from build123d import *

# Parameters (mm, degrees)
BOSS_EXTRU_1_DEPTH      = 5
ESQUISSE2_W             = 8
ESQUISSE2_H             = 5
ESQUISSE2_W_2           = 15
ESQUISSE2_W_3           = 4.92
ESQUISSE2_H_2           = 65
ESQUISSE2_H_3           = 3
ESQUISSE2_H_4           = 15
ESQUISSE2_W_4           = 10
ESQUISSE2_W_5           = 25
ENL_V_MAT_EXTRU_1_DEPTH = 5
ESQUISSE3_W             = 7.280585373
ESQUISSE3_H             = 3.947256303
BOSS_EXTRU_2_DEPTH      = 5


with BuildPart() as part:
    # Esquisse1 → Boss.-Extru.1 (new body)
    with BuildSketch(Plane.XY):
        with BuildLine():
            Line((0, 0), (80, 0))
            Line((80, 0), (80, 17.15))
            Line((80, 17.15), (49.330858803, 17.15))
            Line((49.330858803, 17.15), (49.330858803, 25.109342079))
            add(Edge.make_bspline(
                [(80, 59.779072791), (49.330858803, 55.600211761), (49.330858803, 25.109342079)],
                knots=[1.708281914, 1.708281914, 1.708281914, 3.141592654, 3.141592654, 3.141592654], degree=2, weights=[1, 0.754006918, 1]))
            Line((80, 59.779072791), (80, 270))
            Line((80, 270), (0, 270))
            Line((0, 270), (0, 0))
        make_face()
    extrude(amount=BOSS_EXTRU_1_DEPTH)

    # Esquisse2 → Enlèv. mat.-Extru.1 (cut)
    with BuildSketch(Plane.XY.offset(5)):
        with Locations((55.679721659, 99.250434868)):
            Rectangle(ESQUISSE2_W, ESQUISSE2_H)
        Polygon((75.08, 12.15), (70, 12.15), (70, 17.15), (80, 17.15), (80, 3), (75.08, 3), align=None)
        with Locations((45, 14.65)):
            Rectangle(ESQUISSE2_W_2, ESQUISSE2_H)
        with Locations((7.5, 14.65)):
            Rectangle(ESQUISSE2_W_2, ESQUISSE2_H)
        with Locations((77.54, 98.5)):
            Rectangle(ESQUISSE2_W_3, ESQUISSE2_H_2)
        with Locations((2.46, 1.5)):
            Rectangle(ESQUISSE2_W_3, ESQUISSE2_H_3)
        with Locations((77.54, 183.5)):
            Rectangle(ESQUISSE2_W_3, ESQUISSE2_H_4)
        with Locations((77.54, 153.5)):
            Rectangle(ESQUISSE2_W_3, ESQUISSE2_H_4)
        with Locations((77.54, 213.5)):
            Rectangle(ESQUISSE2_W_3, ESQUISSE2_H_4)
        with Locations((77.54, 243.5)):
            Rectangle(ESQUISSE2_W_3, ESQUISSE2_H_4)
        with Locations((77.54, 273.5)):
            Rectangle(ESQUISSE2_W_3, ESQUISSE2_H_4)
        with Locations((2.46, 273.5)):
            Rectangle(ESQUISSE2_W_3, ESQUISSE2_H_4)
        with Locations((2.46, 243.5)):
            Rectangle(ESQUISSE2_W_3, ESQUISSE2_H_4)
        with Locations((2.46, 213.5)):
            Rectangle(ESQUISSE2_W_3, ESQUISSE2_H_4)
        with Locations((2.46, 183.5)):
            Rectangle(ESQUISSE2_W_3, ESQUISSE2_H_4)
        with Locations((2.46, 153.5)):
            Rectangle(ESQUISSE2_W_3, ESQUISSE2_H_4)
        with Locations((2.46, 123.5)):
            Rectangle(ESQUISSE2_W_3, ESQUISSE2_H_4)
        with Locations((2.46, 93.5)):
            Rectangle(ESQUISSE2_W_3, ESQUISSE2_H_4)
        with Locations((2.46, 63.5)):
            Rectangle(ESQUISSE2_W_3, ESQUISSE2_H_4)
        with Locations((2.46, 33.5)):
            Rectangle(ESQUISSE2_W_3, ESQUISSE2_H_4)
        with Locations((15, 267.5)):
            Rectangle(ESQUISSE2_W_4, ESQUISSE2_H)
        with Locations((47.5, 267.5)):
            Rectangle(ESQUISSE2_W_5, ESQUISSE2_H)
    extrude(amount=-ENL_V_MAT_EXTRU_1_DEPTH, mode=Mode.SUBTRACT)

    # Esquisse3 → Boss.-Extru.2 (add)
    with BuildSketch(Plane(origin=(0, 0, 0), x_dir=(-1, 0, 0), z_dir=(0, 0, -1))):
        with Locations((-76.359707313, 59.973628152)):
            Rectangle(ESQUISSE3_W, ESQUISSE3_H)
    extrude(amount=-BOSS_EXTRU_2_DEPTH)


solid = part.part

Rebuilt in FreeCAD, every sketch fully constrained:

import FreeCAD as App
import Part
import Sketcher
Q = App.Units.Quantity


def add_polygon(sketch, points):
    """Adds a closed chain of lines whose ends are joined by coincident constraints."""
    first, n = sketch.GeometryCount, len(points)
    for a, b in zip(points, points[1:] + points[:1]):
        sketch.addGeometry(Part.LineSegment(App.Vector(*a, 0), App.Vector(*b, 0)), False)
    for i in range(n):
        sketch.addConstraint(Sketcher.Constraint("Coincident", first + i, 2, first + (i + 1) % n, 1))

doc = App.newDocument("Part")
body = doc.addObject("PartDesign::Body", "Body")

# Sketch on XY plane
sketch1 = body.newObject("Sketcher::SketchObject", "Sketch")
sketch1.AttachmentSupport = (doc.getObject("XY_Plane"), [""])
sketch1.MapMode = "FlatFace"
sketch1.addGeometry([
    Part.LineSegment(App.Vector(0, 0, 0), App.Vector(80, 0, 0)),  # 0
    Part.LineSegment(App.Vector(80, 0, 0), App.Vector(80, 17.15, 0)),  # 1
    Part.LineSegment(App.Vector(80, 17.15, 0), App.Vector(49.330859, 17.15, 0)),  # 2
    Part.LineSegment(App.Vector(49.330859, 17.15, 0), App.Vector(49.330859, 25.109342, 0)),  # 3
    Part.BSplineCurve([App.Vector(80, 59.779073, 0), App.Vector(49.330859, 55.600212, 0), App.Vector(49.330859, 25.109342, 0)], [3, 3], [1.708281914, 3.141592654], False, 2, [1, 0.754006918, 1], False),  # 4
    Part.LineSegment(App.Vector(80, 59.779073, 0), App.Vector(80, 270, 0)),  # 5
    Part.LineSegment(App.Vector(80, 270, 0), App.Vector(0, 270, 0)),  # 6
    Part.LineSegment(App.Vector(0, 270, 0), App.Vector(0, 0, 0)),  # 7
], False)
sketch1.addConstraint([
    Sketcher.Constraint("Block", 4),
    Sketcher.Constraint("Coincident", 0, 2, 1, 1),
    Sketcher.Constraint("Coincident", 1, 2, 2, 1),
    Sketcher.Constraint("Coincident", 2, 2, 3, 1),
    Sketcher.Constraint("Coincident", 3, 2, 4, 2),
    Sketcher.Constraint("Coincident", 4, 1, 5, 1),
    Sketcher.Constraint("Coincident", 5, 2, 6, 1),
    Sketcher.Constraint("Coincident", 6, 2, 7, 1),
    Sketcher.Constraint("Coincident", 7, 2, 0, 1),
    Sketcher.Constraint("Horizontal", 0),
    Sketcher.Constraint("Vertical", 1),
    Sketcher.Constraint("Horizontal", 2),
    Sketcher.Constraint("Vertical", 3),
    Sketcher.Constraint("Vertical", 5),
    Sketcher.Constraint("Horizontal", 6),
    Sketcher.Constraint("Vertical", 7),
    Sketcher.Constraint("Coincident", 7, 2, -1, 1),
    Sketcher.Constraint("Vertical", 1, 2, 5, 2),
    Sketcher.Constraint("DistanceY", 7, 2, 7, 1, Q("270 mm")),
    Sketcher.Constraint("DistanceY", 1, 1, 1, 2, Q("17.15 mm")),
])
pad1 = body.newObject("PartDesign::Pad", "Pad")
pad1.Profile = sketch1
pad1.Length = 5

# Sketch on XY plane
sketch2 = body.newObject("Sketcher::SketchObject", "Sketch001")
sketch2.AttachmentSupport = (doc.getObject("XY_Plane"), [""])
sketch2.MapMode = "FlatFace"
sketch2.AttachmentOffset = App.Placement(App.Vector(0, 0, 5), App.Rotation())
add_polygon(sketch2, [(51.7, 101.8), (51.7, 96.8), (59.7, 96.8), (59.7, 101.8)])  # lines 0-3
add_polygon(sketch2, [(70, 12.2), (75.1, 12.2), (75.1, 3), (80, 3), (80, 17.1), (70, 17.1)])  # lines 4-9
add_polygon(sketch2, [(37.5, 17.1), (37.5, 12.2), (52.5, 12.2), (52.5, 17.1)])  # lines 10-13
add_polygon(sketch2, [(0, 17.1), (0, 12.2), (15, 12.2), (15, 17.1)])  # lines 14-17
add_polygon(sketch2, [(75.1, 131), (75.1, 66), (80, 66), (80, 131)])  # lines 18-21
add_polygon(sketch2, [(0, 3), (0, 0), (4.9, 0), (4.9, 3)])  # lines 22-25
add_polygon(sketch2, [(75.1, 191), (75.1, 176), (80, 176), (80, 191)])  # lines 26-29
add_polygon(sketch2, [(75.1, 161), (75.1, 146), (80, 146), (80, 161)])  # lines 30-33
add_polygon(sketch2, [(75.1, 221), (75.1, 206), (80, 206), (80, 221)])  # lines 34-37
add_polygon(sketch2, [(75.1, 251), (75.1, 236), (80, 236), (80, 251)])  # lines 38-41
add_polygon(sketch2, [(75.1, 281), (75.1, 266), (80, 266), (80, 281)])  # lines 42-45
add_polygon(sketch2, [(0, 281), (0, 266), (4.9, 266), (4.9, 281)])  # lines 46-49
add_polygon(sketch2, [(0, 251), (0, 236), (4.9, 236), (4.9, 251)])  # lines 50-53
add_polygon(sketch2, [(0, 221), (0, 206), (4.9, 206), (4.9, 221)])  # lines 54-57
add_polygon(sketch2, [(0, 191), (0, 176), (4.9, 176), (4.9, 191)])  # lines 58-61
add_polygon(sketch2, [(0, 161), (0, 146), (4.9, 146), (4.9, 161)])  # lines 62-65
add_polygon(sketch2, [(0, 131), (0, 116), (4.9, 116), (4.9, 131)])  # lines 66-69
add_polygon(sketch2, [(0, 101), (0, 86), (4.9, 86), (4.9, 101)])  # lines 70-73
add_polygon(sketch2, [(0, 71), (0, 56), (4.9, 56), (4.9, 71)])  # lines 74-77
add_polygon(sketch2, [(0, 41), (0, 26), (4.9, 26), (4.9, 41)])  # lines 78-81
add_polygon(sketch2, [(10, 270), (10, 265), (20, 265), (20, 270)])  # lines 82-85
add_polygon(sketch2, [(35, 270), (35, 265), (60, 265), (60, 270)])  # lines 86-89
sketch2.addConstraint([
    Sketcher.Constraint("Vertical", 0),
    Sketcher.Constraint("Horizontal", 1),
    Sketcher.Constraint("Vertical", 2),
    Sketcher.Constraint("Horizontal", 3),
    Sketcher.Constraint("Horizontal", 4),
    Sketcher.Constraint("Vertical", 5),
    Sketcher.Constraint("Horizontal", 6),
    Sketcher.Constraint("Vertical", 7),
    Sketcher.Constraint("Horizontal", 8),
    Sketcher.Constraint("Vertical", 9),
    Sketcher.Constraint("Vertical", 10),
    Sketcher.Constraint("Horizontal", 11),
    Sketcher.Constraint("Vertical", 12),
    Sketcher.Constraint("Horizontal", 13),
    Sketcher.Constraint("Vertical", 14),
    Sketcher.Constraint("Horizontal", 15),
    Sketcher.Constraint("Vertical", 16),
    Sketcher.Constraint("Horizontal", 17),
    Sketcher.Constraint("Vertical", 18),
    Sketcher.Constraint("Horizontal", 19),
    Sketcher.Constraint("Vertical", 20),
    Sketcher.Constraint("Horizontal", 21),
    Sketcher.Constraint("Vertical", 22),
    Sketcher.Constraint("Horizontal", 23),
    Sketcher.Constraint("Vertical", 24),
    Sketcher.Constraint("Horizontal", 25),
    Sketcher.Constraint("Vertical", 26),
    Sketcher.Constraint("Horizontal", 27),
    Sketcher.Constraint("Vertical", 28),
    Sketcher.Constraint("Horizontal", 29),
    Sketcher.Constraint("Vertical", 30),
    Sketcher.Constraint("Horizontal", 31),
    Sketcher.Constraint("Vertical", 32),
    Sketcher.Constraint("Horizontal", 33),
    Sketcher.Constraint("Vertical", 34),
    Sketcher.Constraint("Horizontal", 35),
    Sketcher.Constraint("Vertical", 36),
    Sketcher.Constraint("Horizontal", 37),
    Sketcher.Constraint("Vertical", 38),
    Sketcher.Constraint("Horizontal", 39),
    Sketcher.Constraint("Vertical", 40),
    Sketcher.Constraint("Horizontal", 41),
    Sketcher.Constraint("Vertical", 42),
    Sketcher.Constraint("Horizontal", 43),
    Sketcher.Constraint("Vertical", 44),
    Sketcher.Constraint("Horizontal", 45),
    Sketcher.Constraint("Vertical", 46),
    Sketcher.Constraint("Horizontal", 47),
    Sketcher.Constraint("Vertical", 48),
    Sketcher.Constraint("Horizontal", 49),
    Sketcher.Constraint("Vertical", 50),
    Sketcher.Constraint("Horizontal", 51),
    Sketcher.Constraint("Vertical", 52),
    Sketcher.Constraint("Horizontal", 53),
    Sketcher.Constraint("Vertical", 54),
    Sketcher.Constraint("Horizontal", 55),
    Sketcher.Constraint("Vertical", 56),
    Sketcher.Constraint("Horizontal", 57),
    Sketcher.Constraint("Vertical", 58),
    Sketcher.Constraint("Horizontal", 59),
    Sketcher.Constraint("Vertical", 60),
    Sketcher.Constraint("Horizontal", 61),
    Sketcher.Constraint("Vertical", 62),
    Sketcher.Constraint("Horizontal", 63),
    Sketcher.Constraint("Vertical", 64),
    Sketcher.Constraint("Horizontal", 65),
    Sketcher.Constraint("Vertical", 66),
    Sketcher.Constraint("Horizontal", 67),
    Sketcher.Constraint("Vertical", 68),
    Sketcher.Constraint("Horizontal", 69),
    Sketcher.Constraint("Vertical", 70),
    Sketcher.Constraint("Horizontal", 71),
    Sketcher.Constraint("Vertical", 72),
    Sketcher.Constraint("Horizontal", 73),
    Sketcher.Constraint("Vertical", 74),
    Sketcher.Constraint("Horizontal", 75),
    Sketcher.Constraint("Vertical", 76),
    Sketcher.Constraint("Horizontal", 77),
    Sketcher.Constraint("Vertical", 78),
    Sketcher.Constraint("Horizontal", 79),
    Sketcher.Constraint("Vertical", 80),
    Sketcher.Constraint("Horizontal", 81),
    Sketcher.Constraint("Vertical", 82),
    Sketcher.Constraint("Horizontal", 83),
    Sketcher.Constraint("Vertical", 84),
    Sketcher.Constraint("Horizontal", 85),
    Sketcher.Constraint("Vertical", 86),
    Sketcher.Constraint("Horizontal", 87),
    Sketcher.Constraint("Vertical", 88),
    Sketcher.Constraint("Horizontal", 89),
    Sketcher.Constraint("Coincident", 22, 2, -1, 1),
    Sketcher.Constraint("PointOnObject", 14, 2, -2),
    Sketcher.Constraint("PointOnObject", 46, 2, -2),
    Sketcher.Constraint("PointOnObject", 50, 2, -2),
    Sketcher.Constraint("PointOnObject", 54, 2, -2),
    Sketcher.Constraint("PointOnObject", 58, 2, -2),
    Sketcher.Constraint("PointOnObject", 62, 2, -2),
    Sketcher.Constraint("PointOnObject", 66, 2, -2),
    Sketcher.Constraint("PointOnObject", 70, 2, -2),
    Sketcher.Constraint("PointOnObject", 74, 2, -2),
    Sketcher.Constraint("PointOnObject", 78, 2, -2),
    Sketcher.Constraint("Horizontal", 9, 2, 10, 2),
    Sketcher.Constraint("Horizontal", 8, 2, 12, 2),
    Sketcher.Constraint("Horizontal", 11, 2, 14, 2),
    Sketcher.Constraint("Horizontal", 13, 2, 16, 2),
    Sketcher.Constraint("Horizontal", 6, 2, 24, 2),
    Sketcher.Constraint("Horizontal", 43, 2, 46, 2),
    Sketcher.Constraint("Horizontal", 45, 2, 48, 2),
    Sketcher.Constraint("Horizontal", 39, 2, 50, 2),
    Sketcher.Constraint("Horizontal", 41, 2, 52, 2),
    Sketcher.Constraint("Horizontal", 35, 2, 54, 2),
    Sketcher.Constraint("Horizontal", 37, 2, 56, 2),
    Sketcher.Constraint("Horizontal", 27, 2, 58, 2),
    Sketcher.Constraint("Horizontal", 29, 2, 60, 2),
    Sketcher.Constraint("Horizontal", 31, 2, 62, 2),
    Sketcher.Constraint("Horizontal", 33, 2, 64, 2),
    Sketcher.Constraint("Horizontal", 21, 2, 68, 2),
    Sketcher.Constraint("Horizontal", 83, 2, 86, 2),
    Sketcher.Constraint("Horizontal", 85, 2, 88, 2),
    Sketcher.Constraint("Vertical", 5, 2, 18, 2),
    Sketcher.Constraint("Vertical", 7, 2, 19, 2),
    Sketcher.Constraint("Vertical", 21, 2, 26, 2),
    Sketcher.Constraint("Vertical", 20, 2, 27, 2),
    Sketcher.Constraint("Vertical", 29, 2, 30, 2),
    Sketcher.Constraint("Vertical", 28, 2, 31, 2),
    Sketcher.Constraint("Vertical", 33, 2, 34, 2),
    Sketcher.Constraint("Vertical", 32, 2, 35, 2),
    Sketcher.Constraint("Vertical", 37, 2, 38, 2),
    Sketcher.Constraint("Vertical", 36, 2, 39, 2),
    Sketcher.Constraint("Vertical", 41, 2, 42, 2),
    Sketcher.Constraint("Vertical", 40, 2, 43, 2),
    Sketcher.Constraint("Vertical", 24, 2, 47, 2),
    Sketcher.Constraint("Vertical", 48, 2, 51, 2),
    Sketcher.Constraint("Vertical", 52, 2, 55, 2),
    Sketcher.Constraint("Vertical", 56, 2, 59, 2),
    Sketcher.Constraint("Vertical", 60, 2, 63, 2),
    Sketcher.Constraint("Vertical", 64, 2, 67, 2),
    Sketcher.Constraint("Vertical", 68, 2, 71, 2),
    Sketcher.Constraint("Vertical", 72, 2, 75, 2),
    Sketcher.Constraint("Vertical", 76, 2, 79, 2),
    Sketcher.Constraint("Equal", 13, 15),
    Sketcher.Constraint("Equal", 21, 23),
    Sketcher.Constraint("Equal", 8, 83),
    Sketcher.Constraint("Equal", 2, 9),
    Sketcher.Constraint("Equal", 17, 26),
    Sketcher.Constraint("Equal", 28, 30),
    Sketcher.Constraint("Equal", 32, 34),
    Sketcher.Constraint("Equal", 36, 38),
    Sketcher.Constraint("Equal", 40, 42),
    Sketcher.Constraint("Equal", 64, 66),
    Sketcher.Constraint("Equal", 68, 70),
    Sketcher.Constraint("Equal", 72, 74),
    Sketcher.Constraint("Equal", 76, 78),
    Sketcher.Constraint("Equal", 16, 82),
    Sketcher.Constraint("DistanceX", 1, 1, 1, 2, Q("8 mm")),
    Sketcher.Constraint("DistanceX", 8, 2, 8, 1, Q("10 mm")),
    Sketcher.Constraint("DistanceX", 11, 1, 11, 2, Q("15 mm")),
    Sketcher.Constraint("DistanceX", 87, 1, 87, 2, Q("25 mm")),
    Sketcher.Constraint("DistanceY", 0, 2, 0, 1, Q("5 mm")),
    Sketcher.Constraint("DistanceY", 18, 2, 18, 1, Q("65 mm")),
    Sketcher.Constraint("DistanceY", 22, 2, 22, 1, Q("3 mm")),
    Sketcher.Constraint("DistanceX", -1, 1, 6, 2, Q("80 mm")),
    Sketcher.Constraint("DistanceY", -1, 1, 18, 2, Q("66 mm")),
    Sketcher.Constraint("DistanceY", -1, 1, 26, 2, Q("176 mm")),
    Sketcher.Constraint("DistanceY", -1, 1, 30, 2, Q("146 mm")),
    Sketcher.Constraint("DistanceY", -1, 1, 34, 2, Q("206 mm")),
    Sketcher.Constraint("DistanceY", -1, 1, 38, 2, Q("236 mm")),
    Sketcher.Constraint("DistanceY", -1, 1, 42, 2, Q("266 mm")),
    Sketcher.Constraint("DistanceY", -1, 1, 70, 2, Q("86 mm")),
    Sketcher.Constraint("DistanceY", -1, 1, 74, 2, Q("56 mm")),
    Sketcher.Constraint("DistanceY", -1, 1, 78, 2, Q("26 mm")),
    Sketcher.Constraint("DistanceX", -1, 1, 82, 2, Q("10 mm")),
    Sketcher.Constraint("DistanceY", -1, 1, 82, 2, Q("265 mm")),
    Sketcher.Constraint("DistanceX", -1, 1, 86, 2, Q("35 mm")),
    Sketcher.Constraint("DistanceX", 4, 1, 4, 2, Q("5.08 mm")),
    Sketcher.Constraint("DistanceY", 5, 2, 5, 1, Q("9.15 mm")),
    Sketcher.Constraint("DistanceX", -1, 1, 10, 2, Q("37.5 mm")),
    Sketcher.Constraint("DistanceX", -1, 1, 0, 2, Q("51.679722 mm")),
    Sketcher.Constraint("DistanceY", -1, 1, 0, 2, Q("96.750435 mm")),
])
pocket1 = body.newObject("PartDesign::Pocket", "Pocket")
pocket1.Profile = sketch2
pocket1.Length = 5

# Sketch on XY plane
sketch3 = body.newObject("Sketcher::SketchObject", "Sketch002")
sketch3.AttachmentSupport = (doc.getObject("XY_Plane"), [""])
sketch3.MapMode = "FlatFace"
add_polygon(sketch3, [(80, 61.9), (80, 58), (72.7, 58), (72.7, 61.9)])  # lines 0-3
sketch3.addConstraint([
    Sketcher.Constraint("Vertical", 0),
    Sketcher.Constraint("Horizontal", 1),
    Sketcher.Constraint("Vertical", 2),
    Sketcher.Constraint("Horizontal", 3),
    Sketcher.Constraint("DistanceX", -1, 1, 0, 2, Q("80 mm")),
    Sketcher.Constraint("DistanceY", -1, 1, 0, 2, Q("58 mm")),
    Sketcher.Constraint("DistanceX", 1, 2, 1, 1, Q("7.280585 mm")),
    Sketcher.Constraint("DistanceY", 0, 2, 0, 1, Q("3.947256 mm")),
])
pad2 = body.newObject("PartDesign::Pad", "Pad001")
pad2.Profile = sketch3
pad2.Length = 5

doc.recompute()
